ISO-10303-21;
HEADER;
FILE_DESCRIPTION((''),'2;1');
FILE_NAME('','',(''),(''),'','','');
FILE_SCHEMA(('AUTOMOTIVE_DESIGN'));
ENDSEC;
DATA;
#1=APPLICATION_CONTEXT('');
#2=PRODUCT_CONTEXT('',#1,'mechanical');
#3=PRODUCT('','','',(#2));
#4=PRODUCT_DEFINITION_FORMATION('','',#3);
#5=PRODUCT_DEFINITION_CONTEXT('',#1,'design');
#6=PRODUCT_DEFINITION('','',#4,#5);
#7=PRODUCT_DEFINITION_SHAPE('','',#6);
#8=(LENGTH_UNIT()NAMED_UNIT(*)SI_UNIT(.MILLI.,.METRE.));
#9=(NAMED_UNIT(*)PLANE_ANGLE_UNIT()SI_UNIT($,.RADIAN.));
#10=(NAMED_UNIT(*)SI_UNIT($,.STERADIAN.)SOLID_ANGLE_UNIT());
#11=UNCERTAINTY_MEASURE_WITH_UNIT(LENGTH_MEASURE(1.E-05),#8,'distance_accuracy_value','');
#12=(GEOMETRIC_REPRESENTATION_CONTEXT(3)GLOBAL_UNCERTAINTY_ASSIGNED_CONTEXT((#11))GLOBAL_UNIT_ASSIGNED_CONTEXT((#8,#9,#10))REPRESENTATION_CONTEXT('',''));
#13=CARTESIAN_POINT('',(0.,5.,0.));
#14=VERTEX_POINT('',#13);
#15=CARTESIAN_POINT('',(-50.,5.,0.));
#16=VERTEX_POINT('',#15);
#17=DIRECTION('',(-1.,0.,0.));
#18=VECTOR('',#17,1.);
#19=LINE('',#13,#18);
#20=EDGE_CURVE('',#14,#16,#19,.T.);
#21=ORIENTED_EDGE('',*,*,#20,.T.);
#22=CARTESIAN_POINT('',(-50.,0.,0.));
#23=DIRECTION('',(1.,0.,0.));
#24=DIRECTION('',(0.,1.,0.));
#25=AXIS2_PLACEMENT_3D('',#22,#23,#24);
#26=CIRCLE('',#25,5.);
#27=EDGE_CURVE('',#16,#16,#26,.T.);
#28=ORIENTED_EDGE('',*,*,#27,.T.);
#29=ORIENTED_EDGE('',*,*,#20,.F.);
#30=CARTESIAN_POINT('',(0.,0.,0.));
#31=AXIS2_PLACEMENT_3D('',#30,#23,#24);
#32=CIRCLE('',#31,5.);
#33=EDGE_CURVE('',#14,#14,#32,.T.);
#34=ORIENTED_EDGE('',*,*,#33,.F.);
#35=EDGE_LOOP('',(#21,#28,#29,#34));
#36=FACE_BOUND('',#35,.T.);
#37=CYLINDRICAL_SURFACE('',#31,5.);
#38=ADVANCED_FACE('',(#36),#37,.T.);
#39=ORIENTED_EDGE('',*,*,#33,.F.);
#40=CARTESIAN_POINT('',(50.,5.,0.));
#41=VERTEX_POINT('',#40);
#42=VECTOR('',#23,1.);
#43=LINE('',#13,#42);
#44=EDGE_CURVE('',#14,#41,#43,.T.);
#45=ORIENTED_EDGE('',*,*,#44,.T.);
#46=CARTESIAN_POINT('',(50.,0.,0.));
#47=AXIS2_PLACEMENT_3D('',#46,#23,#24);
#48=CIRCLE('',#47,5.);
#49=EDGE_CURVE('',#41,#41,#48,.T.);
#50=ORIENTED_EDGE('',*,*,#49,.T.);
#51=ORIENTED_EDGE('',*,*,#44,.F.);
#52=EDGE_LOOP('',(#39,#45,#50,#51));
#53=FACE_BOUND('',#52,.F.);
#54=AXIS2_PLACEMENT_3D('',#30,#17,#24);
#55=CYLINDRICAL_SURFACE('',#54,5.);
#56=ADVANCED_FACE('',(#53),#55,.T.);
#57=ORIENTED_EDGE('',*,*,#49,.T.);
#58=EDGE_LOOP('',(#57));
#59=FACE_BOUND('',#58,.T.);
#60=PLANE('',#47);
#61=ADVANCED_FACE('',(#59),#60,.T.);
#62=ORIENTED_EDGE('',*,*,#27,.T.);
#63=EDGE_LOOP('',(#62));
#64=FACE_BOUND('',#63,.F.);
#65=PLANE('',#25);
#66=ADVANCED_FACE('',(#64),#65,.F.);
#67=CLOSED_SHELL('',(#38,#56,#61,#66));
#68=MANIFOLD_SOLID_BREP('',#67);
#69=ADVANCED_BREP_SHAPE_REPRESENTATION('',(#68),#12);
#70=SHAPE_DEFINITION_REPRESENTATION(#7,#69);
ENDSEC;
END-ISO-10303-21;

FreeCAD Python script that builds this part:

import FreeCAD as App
import Part
import Sketcher

V = App.Vector

doc = App.newDocument("Part")
params = doc.addObject("Spreadsheet::Sheet", "Params")
for row, (alias, value) in enumerate([
    ("sketch1_diameter", "10 mm"),
    ("pad1_length", "50 mm"),
    ("pad1_length2", "50 mm"),
], start=1):
    params.set(f"A{row}", alias)
    params.set(f"B{row}", "=" + value)
    params.setAlias(f"B{row}", alias)

body = doc.addObject("PartDesign::Body", "Body")

# Sketch on YZ plane
sketch1 = doc.addObject("Sketcher::SketchObject", "Sketch")
body.addObject(sketch1)
sketch1.AttachmentSupport = (doc.YZ_Plane, [""])
sketch1.MapMode = "FlatFace"
sketch1.addGeometry(Part.Circle(V(0, 0, 0), V(0, 0, 1), 5), False)
sketch1.addConstraint([
    Sketcher.Constraint("Coincident", 0, 3, -1, 1),
    Sketcher.Constraint("Diameter", 0, 10.0),
])
sketch1.setExpression("Constraints[1]", "Params.sketch1_diameter")
pad1 = doc.addObject("PartDesign::Pad", "Pad")
body.addObject(pad1)
pad1.Profile = sketch1
pad1.Type = "TwoLengths"
pad1.setExpression("Length", "Params.pad1_length")
pad1.setExpression("Length2", "Params.pad1_length2")

doc.recompute()
